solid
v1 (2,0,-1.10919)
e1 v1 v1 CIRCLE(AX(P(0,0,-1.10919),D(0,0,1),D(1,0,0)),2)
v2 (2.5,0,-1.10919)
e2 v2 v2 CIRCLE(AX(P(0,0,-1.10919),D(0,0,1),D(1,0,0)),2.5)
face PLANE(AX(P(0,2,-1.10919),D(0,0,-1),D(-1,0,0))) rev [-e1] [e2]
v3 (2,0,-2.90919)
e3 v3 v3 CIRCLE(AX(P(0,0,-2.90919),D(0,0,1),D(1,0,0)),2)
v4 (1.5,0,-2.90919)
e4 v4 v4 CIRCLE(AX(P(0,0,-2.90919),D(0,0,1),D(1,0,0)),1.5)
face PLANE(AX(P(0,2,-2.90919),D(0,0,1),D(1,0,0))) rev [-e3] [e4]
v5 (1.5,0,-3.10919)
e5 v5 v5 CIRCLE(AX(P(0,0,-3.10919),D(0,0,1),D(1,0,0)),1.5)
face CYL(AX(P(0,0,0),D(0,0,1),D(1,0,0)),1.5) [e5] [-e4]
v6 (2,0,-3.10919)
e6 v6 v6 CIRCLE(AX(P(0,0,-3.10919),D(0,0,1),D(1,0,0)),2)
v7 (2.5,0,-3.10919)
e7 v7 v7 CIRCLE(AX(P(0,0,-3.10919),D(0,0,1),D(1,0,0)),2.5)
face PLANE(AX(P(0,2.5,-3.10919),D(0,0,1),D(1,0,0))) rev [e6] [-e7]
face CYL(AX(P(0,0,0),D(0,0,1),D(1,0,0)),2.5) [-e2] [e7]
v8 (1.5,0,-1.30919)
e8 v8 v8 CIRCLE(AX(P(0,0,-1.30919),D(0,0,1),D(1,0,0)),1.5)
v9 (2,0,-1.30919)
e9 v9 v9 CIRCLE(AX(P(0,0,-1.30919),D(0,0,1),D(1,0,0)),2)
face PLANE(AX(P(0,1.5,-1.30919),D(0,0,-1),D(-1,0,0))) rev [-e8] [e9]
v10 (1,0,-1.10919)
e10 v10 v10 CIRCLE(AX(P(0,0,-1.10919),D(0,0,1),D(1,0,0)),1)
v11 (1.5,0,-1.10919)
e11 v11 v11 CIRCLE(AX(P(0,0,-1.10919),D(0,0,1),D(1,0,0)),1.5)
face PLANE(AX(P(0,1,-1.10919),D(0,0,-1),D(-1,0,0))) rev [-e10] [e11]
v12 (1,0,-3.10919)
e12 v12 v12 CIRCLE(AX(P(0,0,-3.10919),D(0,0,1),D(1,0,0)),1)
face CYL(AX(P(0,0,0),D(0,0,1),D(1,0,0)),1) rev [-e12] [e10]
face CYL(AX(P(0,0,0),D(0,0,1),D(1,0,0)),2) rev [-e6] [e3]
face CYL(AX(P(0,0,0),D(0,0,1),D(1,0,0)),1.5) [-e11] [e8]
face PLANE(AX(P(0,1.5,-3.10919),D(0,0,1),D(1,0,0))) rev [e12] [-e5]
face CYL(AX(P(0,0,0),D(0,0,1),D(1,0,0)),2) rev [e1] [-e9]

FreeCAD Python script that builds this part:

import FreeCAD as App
import Part
import Sketcher
from FreeCAD import Vector

doc = App.newDocument("Part")
body = doc.addObject("PartDesign::Body", "Body")

# Sketch on YZ plane
sketch1 = body.newObject("Sketcher::SketchObject", "Sketch")
sketch1.AttachmentSupport = (doc.getObject("YZ_Plane"), [""])
sketch1.MapMode = "FlatFace"
sketch1.addGeometry([
    Part.LineSegment(Vector(2.5, -3.11, 0), Vector(2.5, -1.11, 0)),  # 0
    Part.LineSegment(Vector(2.5, -1.11, 0), Vector(2, -1.11, 0)),  # 1
    Part.LineSegment(Vector(2, -1.11, 0), Vector(2, -1.31, 0)),  # 2
    Part.LineSegment(Vector(2, -1.31, 0), Vector(1.5, -1.31, 0)),  # 3
    Part.LineSegment(Vector(1.5, -1.31, 0), Vector(1.5, -1.11, 0)),  # 4
    Part.LineSegment(Vector(1.5, -1.11, 0), Vector(1, -1.11, 0)),  # 5
    Part.LineSegment(Vector(1, -1.11, 0), Vector(1, -3.11, 0)),  # 6
    Part.LineSegment(Vector(1, -3.11, 0), Vector(1.5, -3.11, 0)),  # 7
    Part.LineSegment(Vector(1.5, -3.11, 0), Vector(1.5, -2.91, 0)),  # 8
    Part.LineSegment(Vector(1.5, -2.91, 0), Vector(2, -2.91, 0)),  # 9
    Part.LineSegment(Vector(2, -2.91, 0), Vector(2, -3.11, 0)),  # 10
    Part.LineSegment(Vector(2, -3.11, 0), Vector(2.5, -3.11, 0)),  # 11
], False)
sketch1.addConstraint([
    Sketcher.Constraint("Coincident", 0, 2, 1, 1),
    Sketcher.Constraint("Coincident", 1, 2, 2, 1),
    Sketcher.Constraint("Coincident", 2, 2, 3, 1),
    Sketcher.Constraint("Coincident", 3, 2, 4, 1),
    Sketcher.Constraint("Coincident", 4, 2, 5, 1),
    Sketcher.Constraint("Coincident", 5, 2, 6, 1),
    Sketcher.Constraint("Coincident", 6, 2, 7, 1),
    Sketcher.Constraint("Coincident", 7, 2, 8, 1),
    Sketcher.Constraint("Coincident", 8, 2, 9, 1),
    Sketcher.Constraint("Coincident", 9, 2, 10, 1),
    Sketcher.Constraint("Coincident", 10, 2, 11, 1),
    Sketcher.Constraint("Coincident", 11, 2, 0, 1),
    Sketcher.Constraint("Vertical", 0),
    Sketcher.Constraint("Horizontal", 1),
    Sketcher.Constraint("Vertical", 2),
    Sketcher.Constraint("Horizontal", 3),
    Sketcher.Constraint("Vertical", 4),
    Sketcher.Constraint("Horizontal", 5),
    Sketcher.Constraint("Vertical", 6),
    Sketcher.Constraint("Horizontal", 7),
    Sketcher.Constraint("Vertical", 8),
    Sketcher.Constraint("Horizontal", 9),
    Sketcher.Constraint("Vertical", 10),
    Sketcher.Constraint("Horizontal", 11),
    Sketcher.Constraint("Horizontal", 1, 2, 4, 2),
    Sketcher.Constraint("Horizontal", 7, 2, 10, 2),
    Sketcher.Constraint("Vertical", 4, 2, 7, 2),
    Sketcher.Constraint("Vertical", 2, 2, 9, 2),
    Sketcher.Constraint("Equal", 1, 3),
    Sketcher.Constraint("Equal", 3, 5),
    Sketcher.Constraint("Equal", 4, 8),
    Sketcher.Constraint("DistanceY", 0, 1, 0, 2, 2.0),
    Sketcher.Constraint("DistanceX", 1, 2, 1, 1, 0.5),
    Sketcher.Constraint("DistanceY", 2, 2, 2, 1, 0.2),
    Sketcher.Constraint("DistanceX", -1, 1, 1, 2, 2.0),
    Sketcher.Constraint("DistanceY", 0, 2, -1, 1, 1.10919),
])
revolution = body.newObject("PartDesign::Revolution", "Revolution")
revolution.Profile = sketch1
revolution.ReferenceAxis = (sketch1, ["V_Axis"])
revolution.Angle = 360

doc.recompute()
